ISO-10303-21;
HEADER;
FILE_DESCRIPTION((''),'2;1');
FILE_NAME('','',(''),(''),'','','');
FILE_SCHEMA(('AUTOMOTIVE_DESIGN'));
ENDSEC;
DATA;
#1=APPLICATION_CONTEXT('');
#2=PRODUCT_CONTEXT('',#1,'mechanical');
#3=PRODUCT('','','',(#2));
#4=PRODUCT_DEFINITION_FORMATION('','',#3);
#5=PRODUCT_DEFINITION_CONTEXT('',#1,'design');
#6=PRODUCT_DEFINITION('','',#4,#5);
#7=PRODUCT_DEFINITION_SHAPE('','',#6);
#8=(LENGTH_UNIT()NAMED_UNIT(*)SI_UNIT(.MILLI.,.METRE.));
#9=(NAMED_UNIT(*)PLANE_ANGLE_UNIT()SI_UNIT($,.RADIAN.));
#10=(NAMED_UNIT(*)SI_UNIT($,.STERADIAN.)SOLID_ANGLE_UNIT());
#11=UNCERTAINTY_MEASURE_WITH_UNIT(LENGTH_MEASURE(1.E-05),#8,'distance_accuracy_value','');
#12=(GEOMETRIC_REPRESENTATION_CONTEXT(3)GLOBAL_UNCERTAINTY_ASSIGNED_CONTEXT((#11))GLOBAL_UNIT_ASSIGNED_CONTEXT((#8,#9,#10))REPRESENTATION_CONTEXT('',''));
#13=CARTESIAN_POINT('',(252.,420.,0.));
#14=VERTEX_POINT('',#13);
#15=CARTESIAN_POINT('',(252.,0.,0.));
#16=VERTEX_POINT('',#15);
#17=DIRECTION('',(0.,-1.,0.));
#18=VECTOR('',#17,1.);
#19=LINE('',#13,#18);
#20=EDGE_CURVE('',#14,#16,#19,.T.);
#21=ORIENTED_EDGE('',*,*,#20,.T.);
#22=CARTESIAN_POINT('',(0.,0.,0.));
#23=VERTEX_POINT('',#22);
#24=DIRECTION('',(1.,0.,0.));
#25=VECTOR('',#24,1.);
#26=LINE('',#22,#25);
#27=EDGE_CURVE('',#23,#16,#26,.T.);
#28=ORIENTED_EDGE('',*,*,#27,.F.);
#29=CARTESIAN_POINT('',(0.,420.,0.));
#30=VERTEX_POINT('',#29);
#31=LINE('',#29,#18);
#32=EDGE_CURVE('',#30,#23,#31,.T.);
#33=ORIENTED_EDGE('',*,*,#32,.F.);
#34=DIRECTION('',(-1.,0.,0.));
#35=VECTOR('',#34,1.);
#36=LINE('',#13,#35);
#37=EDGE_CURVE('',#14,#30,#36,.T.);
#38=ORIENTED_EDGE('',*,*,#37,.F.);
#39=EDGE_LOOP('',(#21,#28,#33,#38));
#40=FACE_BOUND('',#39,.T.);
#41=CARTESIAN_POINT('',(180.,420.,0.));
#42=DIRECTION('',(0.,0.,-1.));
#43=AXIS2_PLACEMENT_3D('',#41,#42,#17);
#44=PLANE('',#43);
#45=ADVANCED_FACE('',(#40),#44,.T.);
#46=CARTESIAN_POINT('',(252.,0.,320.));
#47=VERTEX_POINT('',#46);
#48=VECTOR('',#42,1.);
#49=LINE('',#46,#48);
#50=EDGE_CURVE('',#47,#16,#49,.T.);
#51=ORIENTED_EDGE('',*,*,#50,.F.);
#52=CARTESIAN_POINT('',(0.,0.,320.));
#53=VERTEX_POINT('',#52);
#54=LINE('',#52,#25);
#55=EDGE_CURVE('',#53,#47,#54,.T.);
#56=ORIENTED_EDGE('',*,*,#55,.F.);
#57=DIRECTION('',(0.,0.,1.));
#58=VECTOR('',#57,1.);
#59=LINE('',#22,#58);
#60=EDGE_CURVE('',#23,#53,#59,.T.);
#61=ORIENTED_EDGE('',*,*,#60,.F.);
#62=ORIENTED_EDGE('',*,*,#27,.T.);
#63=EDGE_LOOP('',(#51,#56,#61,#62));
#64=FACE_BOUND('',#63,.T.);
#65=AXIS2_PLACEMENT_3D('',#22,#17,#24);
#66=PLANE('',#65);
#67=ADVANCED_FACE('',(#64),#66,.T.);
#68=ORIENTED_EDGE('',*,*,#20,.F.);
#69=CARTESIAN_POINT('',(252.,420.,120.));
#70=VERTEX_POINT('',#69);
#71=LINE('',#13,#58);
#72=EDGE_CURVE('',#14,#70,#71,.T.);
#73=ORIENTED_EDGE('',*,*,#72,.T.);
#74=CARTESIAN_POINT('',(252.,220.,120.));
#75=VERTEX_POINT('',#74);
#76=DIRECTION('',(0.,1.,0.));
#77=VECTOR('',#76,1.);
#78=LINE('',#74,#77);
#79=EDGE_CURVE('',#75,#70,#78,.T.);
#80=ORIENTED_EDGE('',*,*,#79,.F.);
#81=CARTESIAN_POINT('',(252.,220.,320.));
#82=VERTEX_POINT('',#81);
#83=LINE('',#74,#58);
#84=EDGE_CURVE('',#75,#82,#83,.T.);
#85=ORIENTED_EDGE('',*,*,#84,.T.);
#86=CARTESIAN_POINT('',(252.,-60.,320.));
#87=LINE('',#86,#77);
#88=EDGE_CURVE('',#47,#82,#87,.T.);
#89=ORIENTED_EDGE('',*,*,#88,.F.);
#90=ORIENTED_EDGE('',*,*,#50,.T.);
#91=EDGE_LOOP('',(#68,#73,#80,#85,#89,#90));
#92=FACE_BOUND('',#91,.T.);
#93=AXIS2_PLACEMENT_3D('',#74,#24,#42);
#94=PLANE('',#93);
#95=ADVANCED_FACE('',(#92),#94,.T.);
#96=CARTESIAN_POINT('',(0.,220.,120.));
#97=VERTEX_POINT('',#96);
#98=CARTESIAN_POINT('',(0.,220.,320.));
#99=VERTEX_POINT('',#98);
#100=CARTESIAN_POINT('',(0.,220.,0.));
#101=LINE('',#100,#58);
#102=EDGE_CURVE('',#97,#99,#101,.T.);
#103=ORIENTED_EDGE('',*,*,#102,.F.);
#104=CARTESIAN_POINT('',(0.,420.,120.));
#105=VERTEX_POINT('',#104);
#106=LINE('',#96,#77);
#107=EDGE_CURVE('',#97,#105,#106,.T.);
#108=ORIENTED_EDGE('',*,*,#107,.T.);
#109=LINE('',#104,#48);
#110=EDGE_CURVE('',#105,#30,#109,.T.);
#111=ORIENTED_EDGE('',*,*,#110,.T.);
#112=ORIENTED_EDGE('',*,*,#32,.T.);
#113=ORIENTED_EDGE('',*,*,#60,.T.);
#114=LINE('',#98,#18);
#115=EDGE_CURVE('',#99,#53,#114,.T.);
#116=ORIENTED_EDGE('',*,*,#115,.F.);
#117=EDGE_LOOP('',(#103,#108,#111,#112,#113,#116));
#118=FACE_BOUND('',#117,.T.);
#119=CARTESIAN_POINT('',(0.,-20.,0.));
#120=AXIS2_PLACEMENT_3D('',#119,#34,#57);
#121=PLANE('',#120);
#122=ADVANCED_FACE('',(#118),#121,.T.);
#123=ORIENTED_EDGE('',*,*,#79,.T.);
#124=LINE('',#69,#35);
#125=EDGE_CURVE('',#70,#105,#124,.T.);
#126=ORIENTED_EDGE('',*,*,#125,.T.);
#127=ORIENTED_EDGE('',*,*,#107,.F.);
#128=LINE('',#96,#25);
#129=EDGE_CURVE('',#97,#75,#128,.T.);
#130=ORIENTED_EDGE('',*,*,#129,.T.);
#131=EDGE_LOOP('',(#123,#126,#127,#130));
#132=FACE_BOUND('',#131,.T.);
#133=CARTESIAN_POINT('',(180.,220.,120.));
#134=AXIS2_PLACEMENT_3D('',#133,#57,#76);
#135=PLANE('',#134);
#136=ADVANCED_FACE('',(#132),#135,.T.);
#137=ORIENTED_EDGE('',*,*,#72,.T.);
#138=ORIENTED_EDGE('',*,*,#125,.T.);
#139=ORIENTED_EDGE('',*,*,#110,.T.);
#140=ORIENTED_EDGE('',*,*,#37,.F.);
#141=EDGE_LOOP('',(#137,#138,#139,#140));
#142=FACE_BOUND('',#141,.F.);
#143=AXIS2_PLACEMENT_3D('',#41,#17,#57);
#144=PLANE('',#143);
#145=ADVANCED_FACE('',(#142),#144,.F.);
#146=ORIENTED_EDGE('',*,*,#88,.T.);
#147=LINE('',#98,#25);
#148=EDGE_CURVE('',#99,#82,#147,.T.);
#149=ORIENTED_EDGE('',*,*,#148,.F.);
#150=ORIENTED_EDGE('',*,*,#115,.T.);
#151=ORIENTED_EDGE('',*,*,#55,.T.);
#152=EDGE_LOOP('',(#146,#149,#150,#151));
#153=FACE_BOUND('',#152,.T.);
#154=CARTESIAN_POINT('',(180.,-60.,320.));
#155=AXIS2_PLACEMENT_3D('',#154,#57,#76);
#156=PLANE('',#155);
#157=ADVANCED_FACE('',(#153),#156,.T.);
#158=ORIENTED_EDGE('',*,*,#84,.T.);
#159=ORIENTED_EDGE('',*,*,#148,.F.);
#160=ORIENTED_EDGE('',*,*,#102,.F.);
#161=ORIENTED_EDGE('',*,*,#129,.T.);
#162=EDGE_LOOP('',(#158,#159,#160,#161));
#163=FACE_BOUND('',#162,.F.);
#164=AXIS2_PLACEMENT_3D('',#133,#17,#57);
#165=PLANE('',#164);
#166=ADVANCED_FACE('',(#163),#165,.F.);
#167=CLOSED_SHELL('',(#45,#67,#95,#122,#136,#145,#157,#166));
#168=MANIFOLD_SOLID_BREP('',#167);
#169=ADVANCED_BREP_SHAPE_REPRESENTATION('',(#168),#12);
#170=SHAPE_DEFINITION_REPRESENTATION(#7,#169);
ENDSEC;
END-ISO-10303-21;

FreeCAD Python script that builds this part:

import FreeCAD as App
import Part
import Sketcher

V = App.Vector

doc = App.newDocument("Part")
body = doc.addObject("PartDesign::Body", "Body")

# Sketch on XY plane
sketch1 = body.newObject("Sketcher::SketchObject", "Sketch")
sketch1.AttachmentSupport = (doc.getObject("XY_Plane"), [""])
sketch1.MapMode = "FlatFace"
sketch1.addGeometry(Part.LineSegment(V(0, 220, 0), V(0, 0, 0)), False)
sketch1.addGeometry(Part.LineSegment(V(0, 0, 0), V(180, 0, 0)), False)
sketch1.addGeometry(Part.LineSegment(V(180, 0, 0), V(180, 220, 0)), False)
sketch1.addGeometry(Part.LineSegment(V(180, 220, 0), V(0, 220, 0)), False)
sketch1.addConstraint(Sketcher.Constraint("Coincident", 0, 2, 1, 1))
sketch1.addConstraint(Sketcher.Constraint("Coincident", 1, 2, 2, 1))
sketch1.addConstraint(Sketcher.Constraint("Coincident", 2, 2, 3, 1))
sketch1.addConstraint(Sketcher.Constraint("Coincident", 3, 2, 0, 1))
sketch1.addConstraint(Sketcher.Constraint("Vertical", 0))
sketch1.addConstraint(Sketcher.Constraint("Horizontal", 1))
sketch1.addConstraint(Sketcher.Constraint("Vertical", 2))
sketch1.addConstraint(Sketcher.Constraint("Horizontal", 3))
sketch1.addConstraint(Sketcher.Constraint("Coincident", 0, 2, -1, 1))
sketch1.addConstraint(Sketcher.Constraint("DistanceX", 1, 1, 1, 2, 180.0))
sketch1.addConstraint(Sketcher.Constraint("DistanceY", 0, 2, 0, 1, 220.0))
pad1 = body.newObject("PartDesign::Pad", "Pad")
pad1.Profile = sketch1
pad1.Length = 320

# Sketch on XZ plane
sketch2 = body.newObject("Sketcher::SketchObject", "Sketch001")
sketch2.AttachmentSupport = (doc.getObject("XZ_Plane"), [""])
sketch2.MapMode = "FlatFace"
sketch2.AttachmentOffset = App.Placement(V(0, 0, -220), App.Rotation())
sketch2.addGeometry(Part.LineSegment(V(180, 0, 0), V(0, 0, 0)), False)
sketch2.addGeometry(Part.LineSegment(V(0, 0, 0), V(0, 120, 0)), False)
sketch2.addGeometry(Part.LineSegment(V(0, 120, 0), V(180, 120, 0)), False)
sketch2.addGeometry(Part.LineSegment(V(180, 120, 0), V(180, 0, 0)), False)
sketch2.addConstraint(Sketcher.Constraint("Coincident", 0, 2, 1, 1))
sketch2.addConstraint(Sketcher.Constraint("Coincident", 1, 2, 2, 1))
sketch2.addConstraint(Sketcher.Constraint("Coincident", 2, 2, 3, 1))
sketch2.addConstraint(Sketcher.Constraint("Coincident", 3, 2, 0, 1))
sketch2.addConstraint(Sketcher.Constraint("Horizontal", 0))
sketch2.addConstraint(Sketcher.Constraint("Vertical", 1))
sketch2.addConstraint(Sketcher.Constraint("Horizontal", 2))
sketch2.addConstraint(Sketcher.Constraint("Vertical", 3))
sketch2.addConstraint(Sketcher.Constraint("Coincident", 0, 2, -1, 1))
sketch2.addConstraint(Sketcher.Constraint("DistanceY", 1, 1, 1, 2, 120.0))
sketch2.addConstraint(Sketcher.Constraint("DistanceX", 0, 2, 0, 1, 180.0))
pad2 = body.newObject("PartDesign::Pad", "Pad001")
pad2.Profile = sketch2
pad2.Length = 200
pad2.Reversed = True

# Sketch on XZ plane
sketch3 = body.newObject("Sketcher::SketchObject", "Sketch002")
sketch3.AttachmentSupport = (doc.getObject("XZ_Plane"), [""])
sketch3.MapMode = "FlatFace"
sketch3.addGeometry(Part.LineSegment(V(0, 320, 0), V(0, 0, 0)), False)
sketch3.addGeometry(Part.LineSegment(V(0, 0, 0), V(180, 0, 0)), False)
sketch3.addGeometry(Part.LineSegment(V(180, 0, 0), V(180, 320, 0)), False)
sketch3.addGeometry(Part.LineSegment(V(180, 320, 0), V(0, 320, 0)), False)
sketch3.addConstraint(Sketcher.Constraint("Coincident", 0, 2, 1, 1))
sketch3.addConstraint(Sketcher.Constraint("Coincident", 1, 2, 2, 1))
sketch3.addConstraint(Sketcher.Constraint("Coincident", 2, 2, 3, 1))
sketch3.addConstraint(Sketcher.Constraint("Coincident", 3, 2, 0, 1))
sketch3.addConstraint(Sketcher.Constraint("Vertical", 0))
sketch3.addConstraint(Sketcher.Constraint("Horizontal", 1))
sketch3.addConstraint(Sketcher.Constraint("Vertical", 2))
sketch3.addConstraint(Sketcher.Constraint("Horizontal", 3))
sketch3.addConstraint(Sketcher.Constraint("Coincident", 0, 2, -1, 1))
sketch3.addConstraint(Sketcher.Constraint("DistanceX", 1, 1, 1, 2, 180.0))
sketch3.addConstraint(Sketcher.Constraint("DistanceY", 0, 2, 0, 1, 320.0))
pad3 = body.newObject("PartDesign::Pad", "Pad002")
pad3.Profile = sketch3
pad3.Length = 20

# Sketch on XZ plane
sketch4 = body.newObject("Sketcher::SketchObject", "Sketch003")
sketch4.AttachmentSupport = (doc.getObject("XZ_Plane"), [""])
sketch4.MapMode = "FlatFace"
sketch4.AttachmentOffset = App.Placement(V(0, 0, 20), App.Rotation())
sketch4.addGeometry(Part.LineSegment(V(180, 0, 0), V(180, 320, 0)), False)
sketch4.addGeometry(Part.LineSegment(V(180, 320, 0), V(0, 320, 0)), False)
sketch4.addGeometry(Part.LineSegment(V(0, 320, 0), V(0, 0, 0)), False)
sketch4.addGeometry(Part.LineSegment(V(0, 0, 0), V(180, 0, 0)), False)
sketch4.addConstraint(Sketcher.Constraint("Coincident", 0, 2, 1, 1))
sketch4.addConstraint(Sketcher.Constraint("Coincident", 1, 2, 2, 1))
sketch4.addConstraint(Sketcher.Constraint("Coincident", 2, 2, 3, 1))
sketch4.addConstraint(Sketcher.Constraint("Coincident", 3, 2, 0, 1))
sketch4.addConstraint(Sketcher.Constraint("Vertical", 0))
sketch4.addConstraint(Sketcher.Constraint("Horizontal", 1))
sketch4.addConstraint(Sketcher.Constraint("Vertical", 2))
sketch4.addConstraint(Sketcher.Constraint("Horizontal", 3))
sketch4.addConstraint(Sketcher.Constraint("Coincident", 2, 2, -1, 1))
sketch4.addConstraint(Sketcher.Constraint("DistanceX", 1, 2, 1, 1, 180.0))
sketch4.addConstraint(Sketcher.Constraint("DistanceY", 0, 1, 0, 2, 320.0))
pad4 = body.newObject("PartDesign::Pad", "Pad003")
pad4.Profile = sketch4
pad4.Length = 40

# Sketch on YZ plane
sketch5 = body.newObject("Sketcher::SketchObject", "Sketch004")
sketch5.AttachmentSupport = (doc.getObject("YZ_Plane"), [""])
sketch5.MapMode = "FlatFace"
sketch5.AttachmentOffset = App.Placement(V(0, 0, 180), App.Rotation())
sketch5.addGeometry(Part.LineSegment(V(420, 120, 0), V(220, 120, 0)), False)
sketch5.addGeometry(Part.LineSegment(V(220, 120, 0), V(220, 320, 0)), False)
sketch5.addGeometry(Part.LineSegment(V(220, 320, 0), V(-60, 320, 0)), False)
sketch5.addGeometry(Part.LineSegment(V(-60, 320, 0), V(-60, 0, 0)), False)
sketch5.addGeometry(Part.LineSegment(V(-60, 0, 0), V(420, 0, 0)), False)
sketch5.addGeometry(Part.LineSegment(V(420, 0, 0), V(420, 120, 0)), False)
sketch5.addConstraint(Sketcher.Constraint("Coincident", 0, 2, 1, 1))
sketch5.addConstraint(Sketcher.Constraint("Coincident", 1, 2, 2, 1))
sketch5.addConstraint(Sketcher.Constraint("Coincident", 2, 2, 3, 1))
sketch5.addConstraint(Sketcher.Constraint("Coincident", 3, 2, 4, 1))
sketch5.addConstraint(Sketcher.Constraint("Coincident", 4, 2, 5, 1))
sketch5.addConstraint(Sketcher.Constraint("Coincident", 5, 2, 0, 1))
sketch5.addConstraint(Sketcher.Constraint("Horizontal", 0))
sketch5.addConstraint(Sketcher.Constraint("Vertical", 1))
sketch5.addConstraint(Sketcher.Constraint("Horizontal", 2))
sketch5.addConstraint(Sketcher.Constraint("Vertical", 3))
sketch5.addConstraint(Sketcher.Constraint("Horizontal", 4))
sketch5.addConstraint(Sketcher.Constraint("Vertical", 5))
sketch5.addConstraint(Sketcher.Constraint("PointOnObject", 3, 2, -1))
sketch5.addConstraint(Sketcher.Constraint("Equal", 0, 1))
sketch5.addConstraint(Sketcher.Constraint("DistanceX", 0, 2, 0, 1, 200.0))
sketch5.addConstraint(Sketcher.Constraint("DistanceX", 2, 2, 2, 1, 280.0))
sketch5.addConstraint(Sketcher.Constraint("DistanceY", 3, 2, 3, 1, 320.0))
sketch5.addConstraint(Sketcher.Constraint("DistanceX", -1, 1, 0, 2, 220.0))
pad5 = body.newObject("PartDesign::Pad", "Pad004")
pad5.Profile = sketch5
pad5.Length = 72

# Sketch on XZ plane
sketch6 = body.newObject("Sketcher::SketchObject", "Sketch005")
sketch6.AttachmentSupport = (doc.getObject("XZ_Plane"), [""])
sketch6.MapMode = "FlatFace"
sketch6.AttachmentOffset = App.Placement(V(0, 0, 60), App.Rotation())
sketch6.addGeometry(Part.LineSegment(V(0, 320, 0), V(0, 0, 0)), False)
sketch6.addGeometry(Part.LineSegment(V(0, 0, 0), V(252, 0, 0)), False)
sketch6.addGeometry(Part.LineSegment(V(252, 0, 0), V(252, 320, 0)), False)
sketch6.addGeometry(Part.LineSegment(V(252, 320, 0), V(0, 320, 0)), False)
sketch6.addConstraint(Sketcher.Constraint("Coincident", 0, 2, 1, 1))
sketch6.addConstraint(Sketcher.Constraint("Coincident", 1, 2, 2, 1))
sketch6.addConstraint(Sketcher.Constraint("Coincident", 2, 2, 3, 1))
sketch6.addConstraint(Sketcher.Constraint("Coincident", 3, 2, 0, 1))
sketch6.addConstraint(Sketcher.Constraint("Vertical", 0))
sketch6.addConstraint(Sketcher.Constraint("Horizontal", 1))
sketch6.addConstraint(Sketcher.Constraint("Vertical", 2))
sketch6.addConstraint(Sketcher.Constraint("Horizontal", 3))
sketch6.addConstraint(Sketcher.Constraint("Coincident", 0, 2, -1, 1))
sketch6.addConstraint(Sketcher.Constraint("DistanceX", 1, 1, 1, 2, 252.0))
sketch6.addConstraint(Sketcher.Constraint("DistanceY", 0, 2, 0, 1, 320.0))
pocket1 = body.newObject("PartDesign::Pocket", "Pocket")
pocket1.Profile = sketch6
pocket1.Length = 40

# Sketch on XZ plane
sketch7 = body.newObject("Sketcher::SketchObject", "Sketch006")
sketch7.AttachmentSupport = (doc.getObject("XZ_Plane"), [""])
sketch7.MapMode = "FlatFace"
sketch7.AttachmentOffset = App.Placement(V(0, 0, 20), App.Rotation())
sketch7.addGeometry(Part.LineSegment(V(0, 320, 0), V(0, 0, 0)), False)
sketch7.addGeometry(Part.LineSegment(V(0, 0, 0), V(252, 0, 0)), False)
sketch7.addGeometry(Part.LineSegment(V(252, 0, 0), V(252, 320, 0)), False)
sketch7.addGeometry(Part.LineSegment(V(252, 320, 0), V(0, 320, 0)), False)
sketch7.addConstraint(Sketcher.Constraint("Coincident", 0, 2, 1, 1))
sketch7.addConstraint(Sketcher.Constraint("Coincident", 1, 2, 2, 1))
sketch7.addConstraint(Sketcher.Constraint("Coincident", 2, 2, 3, 1))
sketch7.addConstraint(Sketcher.Constraint("Coincident", 3, 2, 0, 1))
sketch7.addConstraint(Sketcher.Constraint("Vertical", 0))
sketch7.addConstraint(Sketcher.Constraint("Horizontal", 1))
sketch7.addConstraint(Sketcher.Constraint("Vertical", 2))
sketch7.addConstraint(Sketcher.Constraint("Horizontal", 3))
sketch7.addConstraint(Sketcher.Constraint("Coincident", 0, 2, -1, 1))
sketch7.addConstraint(Sketcher.Constraint("DistanceX", 1, 1, 1, 2, 252.0))
sketch7.addConstraint(Sketcher.Constraint("DistanceY", 0, 2, 0, 1, 320.0))
pocket2 = body.newObject("PartDesign::Pocket", "Pocket001")
pocket2.Profile = sketch7
pocket2.Length = 20

doc.recompute()
